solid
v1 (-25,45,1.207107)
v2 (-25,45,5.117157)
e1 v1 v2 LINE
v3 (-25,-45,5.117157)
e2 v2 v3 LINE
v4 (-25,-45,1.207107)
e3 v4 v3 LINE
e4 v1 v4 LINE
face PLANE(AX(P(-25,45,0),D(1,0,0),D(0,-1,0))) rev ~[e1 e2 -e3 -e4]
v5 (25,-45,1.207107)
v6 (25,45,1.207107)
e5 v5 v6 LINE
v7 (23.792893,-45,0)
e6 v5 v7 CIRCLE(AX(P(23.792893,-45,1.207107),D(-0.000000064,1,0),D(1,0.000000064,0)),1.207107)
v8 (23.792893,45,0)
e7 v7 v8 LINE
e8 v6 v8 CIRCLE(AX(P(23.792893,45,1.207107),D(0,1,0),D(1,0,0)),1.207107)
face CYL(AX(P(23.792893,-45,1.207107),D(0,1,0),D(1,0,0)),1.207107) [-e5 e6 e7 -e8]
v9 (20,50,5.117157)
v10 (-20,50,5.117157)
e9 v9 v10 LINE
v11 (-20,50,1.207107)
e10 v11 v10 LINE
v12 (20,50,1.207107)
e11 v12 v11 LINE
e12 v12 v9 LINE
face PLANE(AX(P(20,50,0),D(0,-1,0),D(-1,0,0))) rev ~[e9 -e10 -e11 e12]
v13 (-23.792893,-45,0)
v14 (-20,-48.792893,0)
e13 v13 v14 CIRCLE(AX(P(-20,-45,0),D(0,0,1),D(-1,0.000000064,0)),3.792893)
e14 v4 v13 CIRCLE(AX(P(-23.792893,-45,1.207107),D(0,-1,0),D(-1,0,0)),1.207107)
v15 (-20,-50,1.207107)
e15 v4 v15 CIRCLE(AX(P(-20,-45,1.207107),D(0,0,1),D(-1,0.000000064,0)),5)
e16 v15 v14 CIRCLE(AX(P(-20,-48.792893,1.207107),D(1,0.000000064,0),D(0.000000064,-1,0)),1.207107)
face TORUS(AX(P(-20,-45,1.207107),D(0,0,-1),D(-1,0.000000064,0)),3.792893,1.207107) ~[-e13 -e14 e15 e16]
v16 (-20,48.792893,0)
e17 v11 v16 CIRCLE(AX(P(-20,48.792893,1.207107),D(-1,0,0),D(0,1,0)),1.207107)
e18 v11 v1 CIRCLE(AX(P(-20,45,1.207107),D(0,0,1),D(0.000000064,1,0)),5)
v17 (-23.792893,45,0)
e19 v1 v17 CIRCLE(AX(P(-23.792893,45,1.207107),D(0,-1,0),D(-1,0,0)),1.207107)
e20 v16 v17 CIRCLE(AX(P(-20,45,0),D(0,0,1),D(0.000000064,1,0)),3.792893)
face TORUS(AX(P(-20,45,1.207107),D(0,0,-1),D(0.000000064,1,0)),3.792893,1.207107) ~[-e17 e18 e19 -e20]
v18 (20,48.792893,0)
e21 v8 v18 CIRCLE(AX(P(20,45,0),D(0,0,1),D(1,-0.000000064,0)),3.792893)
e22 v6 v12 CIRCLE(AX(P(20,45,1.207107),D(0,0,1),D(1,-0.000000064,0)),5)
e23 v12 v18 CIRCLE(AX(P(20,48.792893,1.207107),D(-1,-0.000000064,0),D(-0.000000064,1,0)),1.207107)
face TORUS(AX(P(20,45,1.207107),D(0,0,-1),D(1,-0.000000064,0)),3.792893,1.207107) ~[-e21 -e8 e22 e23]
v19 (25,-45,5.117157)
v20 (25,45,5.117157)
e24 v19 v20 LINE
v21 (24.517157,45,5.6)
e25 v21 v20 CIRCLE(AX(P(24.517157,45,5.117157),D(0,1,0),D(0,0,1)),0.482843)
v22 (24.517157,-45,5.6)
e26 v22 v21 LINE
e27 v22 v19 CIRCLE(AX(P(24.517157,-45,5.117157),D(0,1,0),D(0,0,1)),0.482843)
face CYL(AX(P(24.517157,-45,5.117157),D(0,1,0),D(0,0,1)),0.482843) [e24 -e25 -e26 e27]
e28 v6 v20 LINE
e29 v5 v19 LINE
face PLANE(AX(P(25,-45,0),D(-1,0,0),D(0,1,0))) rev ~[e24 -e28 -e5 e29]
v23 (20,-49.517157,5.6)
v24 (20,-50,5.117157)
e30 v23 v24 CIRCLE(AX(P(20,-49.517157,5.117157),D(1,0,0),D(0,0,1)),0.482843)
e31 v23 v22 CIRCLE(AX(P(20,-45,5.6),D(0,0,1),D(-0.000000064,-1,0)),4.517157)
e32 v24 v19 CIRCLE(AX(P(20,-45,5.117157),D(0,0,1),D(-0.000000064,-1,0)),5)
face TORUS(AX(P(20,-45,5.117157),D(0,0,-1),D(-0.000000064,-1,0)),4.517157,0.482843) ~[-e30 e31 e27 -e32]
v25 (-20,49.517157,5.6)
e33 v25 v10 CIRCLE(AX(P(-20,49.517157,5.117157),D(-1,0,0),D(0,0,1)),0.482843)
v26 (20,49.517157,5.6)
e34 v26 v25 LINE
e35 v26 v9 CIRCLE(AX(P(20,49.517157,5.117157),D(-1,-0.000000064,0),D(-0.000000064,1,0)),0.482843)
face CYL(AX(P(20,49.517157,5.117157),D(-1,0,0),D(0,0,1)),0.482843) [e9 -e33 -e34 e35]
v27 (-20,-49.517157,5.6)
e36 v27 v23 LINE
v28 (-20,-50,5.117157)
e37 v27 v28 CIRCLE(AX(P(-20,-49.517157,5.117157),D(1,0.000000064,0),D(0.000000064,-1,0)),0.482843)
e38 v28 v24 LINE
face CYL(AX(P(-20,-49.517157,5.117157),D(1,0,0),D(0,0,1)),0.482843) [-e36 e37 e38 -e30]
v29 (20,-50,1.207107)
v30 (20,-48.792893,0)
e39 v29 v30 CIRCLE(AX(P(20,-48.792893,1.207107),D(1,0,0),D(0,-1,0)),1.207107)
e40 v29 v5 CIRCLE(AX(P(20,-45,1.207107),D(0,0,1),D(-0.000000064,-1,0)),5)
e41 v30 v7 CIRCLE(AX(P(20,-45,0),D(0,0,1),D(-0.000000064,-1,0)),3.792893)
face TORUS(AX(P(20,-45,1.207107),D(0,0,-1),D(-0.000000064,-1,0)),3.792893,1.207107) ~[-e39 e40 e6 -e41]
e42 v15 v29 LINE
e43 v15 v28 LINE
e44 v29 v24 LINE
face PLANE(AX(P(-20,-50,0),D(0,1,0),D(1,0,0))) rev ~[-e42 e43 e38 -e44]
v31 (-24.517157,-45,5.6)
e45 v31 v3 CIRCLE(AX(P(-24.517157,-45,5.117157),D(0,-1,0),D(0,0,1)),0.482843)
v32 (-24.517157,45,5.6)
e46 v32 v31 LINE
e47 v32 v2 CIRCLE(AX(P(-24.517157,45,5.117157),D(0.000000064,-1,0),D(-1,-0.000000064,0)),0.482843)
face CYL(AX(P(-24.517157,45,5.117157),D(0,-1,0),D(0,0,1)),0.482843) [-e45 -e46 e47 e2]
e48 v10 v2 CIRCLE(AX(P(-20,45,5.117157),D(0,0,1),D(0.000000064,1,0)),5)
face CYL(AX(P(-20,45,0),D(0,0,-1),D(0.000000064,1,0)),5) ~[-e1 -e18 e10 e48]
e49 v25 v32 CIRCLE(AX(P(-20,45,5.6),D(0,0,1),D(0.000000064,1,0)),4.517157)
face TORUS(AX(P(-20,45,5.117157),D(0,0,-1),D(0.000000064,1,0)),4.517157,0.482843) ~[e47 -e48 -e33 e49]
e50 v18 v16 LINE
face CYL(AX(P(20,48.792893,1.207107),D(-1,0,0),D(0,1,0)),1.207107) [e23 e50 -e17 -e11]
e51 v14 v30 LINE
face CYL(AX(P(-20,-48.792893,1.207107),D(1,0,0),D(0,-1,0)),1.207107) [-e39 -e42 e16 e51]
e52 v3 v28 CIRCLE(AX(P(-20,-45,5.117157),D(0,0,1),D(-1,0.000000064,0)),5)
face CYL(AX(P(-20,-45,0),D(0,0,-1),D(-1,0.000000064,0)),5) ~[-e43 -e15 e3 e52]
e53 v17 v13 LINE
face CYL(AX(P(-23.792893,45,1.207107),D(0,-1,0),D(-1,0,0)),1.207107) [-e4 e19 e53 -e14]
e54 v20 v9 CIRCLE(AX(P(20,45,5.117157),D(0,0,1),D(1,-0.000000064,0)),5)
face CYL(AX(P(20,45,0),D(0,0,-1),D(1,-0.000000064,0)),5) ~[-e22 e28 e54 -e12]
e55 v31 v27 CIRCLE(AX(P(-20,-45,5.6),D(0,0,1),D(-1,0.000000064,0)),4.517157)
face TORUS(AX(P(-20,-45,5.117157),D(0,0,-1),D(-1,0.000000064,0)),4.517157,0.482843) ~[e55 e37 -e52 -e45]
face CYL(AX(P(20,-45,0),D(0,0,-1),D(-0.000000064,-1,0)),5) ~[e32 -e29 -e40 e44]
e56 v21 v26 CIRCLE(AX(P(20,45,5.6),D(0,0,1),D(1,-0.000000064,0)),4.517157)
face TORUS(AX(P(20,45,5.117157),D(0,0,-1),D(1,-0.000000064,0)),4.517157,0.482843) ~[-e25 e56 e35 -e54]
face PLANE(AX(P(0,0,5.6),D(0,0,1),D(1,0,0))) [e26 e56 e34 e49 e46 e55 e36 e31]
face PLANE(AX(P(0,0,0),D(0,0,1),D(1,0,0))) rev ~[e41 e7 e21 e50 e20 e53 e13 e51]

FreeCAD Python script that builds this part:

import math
import FreeCAD as App
import Part
import Sketcher


def edges_at(feature, points):
    """Names of the edges that pass closest to the given points."""
    edges = feature.Shape.Edges
    near = lambda p: min(range(len(edges)), key=lambda i: edges[i].distToShape(Part.Vertex(*p))[0])
    return sorted({f"Edge{near(p) + 1}" for p in points})

doc = App.newDocument("Part")
body = doc.addObject("PartDesign::Body", "Body")

sketch1 = body.newObject("Sketcher::SketchObject", "Sketch")
sketch1.AttachmentSupport = (doc.getObject("XY_Plane"), [""])
sketch1.MapMode = "FlatFace"
sketch1.addGeometry(Part.LineSegment(App.Vector(20, 50, 0), App.Vector(-20, 50, 0)), False)
sketch1.addGeometry(Part.ArcOfCircle(Part.Circle(App.Vector(-20, 45, 0), App.Vector(0, 0, 1), 5), math.radians(89.999996), math.radians(180.000004)), False)
sketch1.addGeometry(Part.LineSegment(App.Vector(-25, 45, 0), App.Vector(-25, -45, 0)), False)
sketch1.addGeometry(Part.ArcOfCircle(Part.Circle(App.Vector(-20, -45, 0), App.Vector(0, 0, 1), 5), math.radians(179.999996), math.radians(270.000004)), False)
sketch1.addGeometry(Part.LineSegment(App.Vector(-20, -50, 0), App.Vector(20, -50, 0)), False)
sketch1.addGeometry(Part.ArcOfCircle(Part.Circle(App.Vector(20, -45, 0), App.Vector(0, 0, 1), 5), math.radians(-90.000004), math.radians(0.000004)), False)
sketch1.addGeometry(Part.LineSegment(App.Vector(25, -45, 0), App.Vector(25, 45, 0)), False)
sketch1.addGeometry(Part.ArcOfCircle(Part.Circle(App.Vector(20, 45, 0), App.Vector(0, 0, 1), 5), math.radians(-0.000004), math.radians(90.000004)), False)
sketch1.addConstraint(Sketcher.Constraint("Tangent", 0, 2, 1, 1))
sketch1.addConstraint(Sketcher.Constraint("Tangent", 1, 2, 2, 1))
sketch1.addConstraint(Sketcher.Constraint("Tangent", 2, 2, 3, 1))
sketch1.addConstraint(Sketcher.Constraint("Tangent", 3, 2, 4, 1))
sketch1.addConstraint(Sketcher.Constraint("Tangent", 4, 2, 5, 1))
sketch1.addConstraint(Sketcher.Constraint("Tangent", 5, 2, 6, 1))
sketch1.addConstraint(Sketcher.Constraint("Tangent", 6, 2, 7, 1))
sketch1.addConstraint(Sketcher.Constraint("Tangent", 7, 2, 0, 1))
sketch1.addConstraint(Sketcher.Constraint("Horizontal", 0))
sketch1.addConstraint(Sketcher.Constraint("Vertical", 2))
sketch1.addConstraint(Sketcher.Constraint("Horizontal", 4))
sketch1.addConstraint(Sketcher.Constraint("Vertical", 6))
sketch1.addConstraint(Sketcher.Constraint("Equal", 1, 3))
sketch1.addConstraint(Sketcher.Constraint("Equal", 3, 5))
sketch1.addConstraint(Sketcher.Constraint("Equal", 5, 7))
sketch1.addConstraint(Sketcher.Constraint("Symmetric", 1, 3, 5, 3, -1, 1))
sketch1.addConstraint(Sketcher.Constraint("Radius", 1, 5.0))
sketch1.addConstraint(Sketcher.Constraint("DistanceX", 0, 2, 0, 1, 40.0))
sketch1.addConstraint(Sketcher.Constraint("DistanceY", 2, 2, 2, 1, 90.0))
pad1 = body.newObject("PartDesign::Pad", "Pad")
pad1.Profile = sketch1
pad1.Length = 5.6
doc.recompute()

fillet = body.newObject("PartDesign::Fillet", "Fillet")
fillet.Base = (pad1, edges_at(pad1, [(-25, 0, 0)]))
fillet.Radius = 1.207107
doc.recompute()

fillet2 = body.newObject("PartDesign::Fillet", "Fillet001")
fillet2.Base = (fillet, edges_at(fillet, [(25, 0, 5.6)]))
fillet2.Radius = 0.482843

doc.recompute()
